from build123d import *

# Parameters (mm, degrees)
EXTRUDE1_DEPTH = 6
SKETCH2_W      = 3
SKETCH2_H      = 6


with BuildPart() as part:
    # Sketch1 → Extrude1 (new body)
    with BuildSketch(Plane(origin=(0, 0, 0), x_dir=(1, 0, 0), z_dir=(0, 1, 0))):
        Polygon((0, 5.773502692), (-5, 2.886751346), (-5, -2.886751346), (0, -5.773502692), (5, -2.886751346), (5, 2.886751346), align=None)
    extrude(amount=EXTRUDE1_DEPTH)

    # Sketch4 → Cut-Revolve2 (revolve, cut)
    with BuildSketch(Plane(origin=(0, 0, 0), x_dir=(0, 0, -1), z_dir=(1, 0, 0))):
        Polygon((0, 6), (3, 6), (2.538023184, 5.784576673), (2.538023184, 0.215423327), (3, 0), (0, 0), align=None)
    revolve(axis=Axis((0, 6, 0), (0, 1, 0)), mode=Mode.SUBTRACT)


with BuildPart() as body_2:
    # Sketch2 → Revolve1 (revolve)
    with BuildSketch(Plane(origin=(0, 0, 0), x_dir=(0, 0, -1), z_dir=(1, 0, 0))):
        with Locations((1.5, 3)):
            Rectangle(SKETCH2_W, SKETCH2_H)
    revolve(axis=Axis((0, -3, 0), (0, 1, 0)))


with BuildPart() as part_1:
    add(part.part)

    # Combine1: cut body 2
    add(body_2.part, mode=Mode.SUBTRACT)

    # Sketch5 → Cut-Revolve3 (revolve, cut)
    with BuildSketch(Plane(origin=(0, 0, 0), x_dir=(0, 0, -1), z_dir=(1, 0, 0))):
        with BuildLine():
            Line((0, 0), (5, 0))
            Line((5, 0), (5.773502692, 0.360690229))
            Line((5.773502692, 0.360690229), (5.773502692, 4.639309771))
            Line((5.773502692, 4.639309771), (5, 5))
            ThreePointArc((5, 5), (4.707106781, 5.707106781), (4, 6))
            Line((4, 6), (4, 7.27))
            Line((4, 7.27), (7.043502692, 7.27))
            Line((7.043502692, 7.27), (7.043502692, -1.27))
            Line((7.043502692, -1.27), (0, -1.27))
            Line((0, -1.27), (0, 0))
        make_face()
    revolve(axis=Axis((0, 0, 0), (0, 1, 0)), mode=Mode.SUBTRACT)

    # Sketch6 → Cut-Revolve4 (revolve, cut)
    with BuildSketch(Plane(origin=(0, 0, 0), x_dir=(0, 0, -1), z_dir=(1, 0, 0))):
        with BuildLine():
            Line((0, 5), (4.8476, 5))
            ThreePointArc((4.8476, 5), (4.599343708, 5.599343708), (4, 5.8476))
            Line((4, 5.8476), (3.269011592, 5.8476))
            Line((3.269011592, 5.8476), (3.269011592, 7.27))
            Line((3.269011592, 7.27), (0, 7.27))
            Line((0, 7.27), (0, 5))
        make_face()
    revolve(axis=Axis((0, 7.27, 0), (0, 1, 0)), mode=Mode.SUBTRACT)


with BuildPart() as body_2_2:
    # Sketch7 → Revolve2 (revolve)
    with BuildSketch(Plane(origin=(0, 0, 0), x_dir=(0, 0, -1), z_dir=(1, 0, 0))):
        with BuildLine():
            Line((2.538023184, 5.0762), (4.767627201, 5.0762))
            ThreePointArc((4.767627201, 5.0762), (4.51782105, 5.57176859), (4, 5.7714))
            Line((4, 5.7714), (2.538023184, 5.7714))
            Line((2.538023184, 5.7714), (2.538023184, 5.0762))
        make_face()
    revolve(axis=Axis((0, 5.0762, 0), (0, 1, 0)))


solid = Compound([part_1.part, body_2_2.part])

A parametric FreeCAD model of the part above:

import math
import FreeCAD as App
import Part
import Sketcher
from FreeCAD import Vector
Q = App.Units.Quantity

doc = App.newDocument("Part")
body = doc.addObject("PartDesign::Body", "Body")

# Sketch on XZ plane
sketch1 = body.newObject("Sketcher::SketchObject", "Sketch")
sketch1.AttachmentSupport = (doc.getObject("XZ_Plane"), [""])
sketch1.MapMode = "FlatFace"
sketch1.addGeometry(Part.LineSegment(Vector(0, -6, 0), Vector(-5, -3, 0)), False)
sketch1.addGeometry(Part.LineSegment(Vector(-5, -3, 0), Vector(-5, 3, 0)), False)
sketch1.addGeometry(Part.LineSegment(Vector(-5, 3, 0), Vector(0, 6, 0)), False)
sketch1.addGeometry(Part.LineSegment(Vector(0, 6, 0), Vector(5, 3, 0)), False)
sketch1.addGeometry(Part.LineSegment(Vector(5, 3, 0), Vector(5, -3, 0)), False)
sketch1.addGeometry(Part.LineSegment(Vector(5, -3, 0), Vector(0, -6, 0)), False)
sketch1.addConstraint(Sketcher.Constraint("Coincident", 0, 2, 1, 1))
sketch1.addConstraint(Sketcher.Constraint("Coincident", 1, 2, 2, 1))
sketch1.addConstraint(Sketcher.Constraint("Coincident", 2, 2, 3, 1))
sketch1.addConstraint(Sketcher.Constraint("Coincident", 3, 2, 4, 1))
sketch1.addConstraint(Sketcher.Constraint("Coincident", 4, 2, 5, 1))
sketch1.addConstraint(Sketcher.Constraint("Coincident", 5, 2, 0, 1))
sketch1.addConstraint(Sketcher.Constraint("Vertical", 1))
sketch1.addConstraint(Sketcher.Constraint("Vertical", 4))
sketch1.addConstraint(Sketcher.Constraint("Symmetric", 0, 2, 3, 2, -1, 1))
sketch1.addConstraint(Sketcher.Constraint("Symmetric", 2, 2, 5, 2, -1, 1))
sketch1.addConstraint(Sketcher.Constraint("PointOnObject", 2, 2, -2))
sketch1.addConstraint(Sketcher.Constraint("Parallel", 2, 5))
sketch1.addConstraint(Sketcher.Constraint("Horizontal", 1, 2, 3, 2))
sketch1.addConstraint(Sketcher.Constraint("Angle", 0, Q("150 deg")))
sketch1.addConstraint(Sketcher.Constraint("DistanceX", 0, 2, -1, 1, 5.0))
sketch1.addConstraint(Sketcher.Constraint("DistanceY", 1, 1, 1, 2, 5.773503))
pad1 = body.newObject("PartDesign::Pad", "Pad")
pad1.Profile = sketch1
pad1.Length = 6
pad1.Reversed = True

# Sketch on YZ plane
sketch2 = body.newObject("Sketcher::SketchObject", "Sketch001")
sketch2.AttachmentSupport = (doc.getObject("YZ_Plane"), [""])
sketch2.MapMode = "FlatFace"
sketch2.addGeometry(Part.LineSegment(Vector(6, -3, 0), Vector(6, 0, 0)), False)
sketch2.addGeometry(Part.LineSegment(Vector(6, 0, 0), Vector(0, 0, 0)), False)
sketch2.addGeometry(Part.LineSegment(Vector(0, 0, 0), Vector(0, -3, 0)), False)
sketch2.addGeometry(Part.LineSegment(Vector(0, -3, 0), Vector(0.2, -2.5, 0)), False)
sketch2.addGeometry(Part.LineSegment(Vector(0.2, -2.5, 0), Vector(5.8, -2.5, 0)), False)
sketch2.addGeometry(Part.LineSegment(Vector(5.8, -2.5, 0), Vector(6, -3, 0)), False)
sketch2.addConstraint(Sketcher.Constraint("Coincident", 0, 2, 1, 1))
sketch2.addConstraint(Sketcher.Constraint("Coincident", 1, 2, 2, 1))
sketch2.addConstraint(Sketcher.Constraint("Coincident", 2, 2, 3, 1))
sketch2.addConstraint(Sketcher.Constraint("Coincident", 3, 2, 4, 1))
sketch2.addConstraint(Sketcher.Constraint("Coincident", 4, 2, 5, 1))
sketch2.addConstraint(Sketcher.Constraint("Coincident", 5, 2, 0, 1))
sketch2.addConstraint(Sketcher.Constraint("Vertical", 0))
sketch2.addConstraint(Sketcher.Constraint("Horizontal", 1))
sketch2.addConstraint(Sketcher.Constraint("Vertical", 2))
sketch2.addConstraint(Sketcher.Constraint("Horizontal", 4))
sketch2.addConstraint(Sketcher.Constraint("Coincident", 1, 2, -1, 1))
sketch2.addConstraint(Sketcher.Constraint("Horizontal", 2, 2, 5, 2))
sketch2.addConstraint(Sketcher.Constraint("Equal", 3, 5))
sketch2.addConstraint(Sketcher.Constraint("DistanceX", 1, 2, 1, 1, 6.0))
sketch2.addConstraint(Sketcher.Constraint("DistanceY", 0, 1, 0, 2, 3.0))
sketch2.addConstraint(Sketcher.Constraint("Angle", 3, Q("65 deg")))
sketch2.addConstraint(Sketcher.Constraint("DistanceX", 4, 1, 4, 2, 5.569153))
groove = body.newObject("PartDesign::Groove", "Groove")
groove.Profile = sketch2
groove.ReferenceAxis = (sketch2, ["H_Axis"])
groove.Angle = 360
body2 = doc.addObject("PartDesign::Body", "Body001")

# Sketch on YZ plane
sketch3 = body2.newObject("Sketcher::SketchObject", "Sketch002")
sketch3.AttachmentSupport = (doc.getObject("YZ_Plane001"), [""])
sketch3.MapMode = "FlatFace"
sketch3.addGeometry(Part.LineSegment(Vector(6, 0, 0), Vector(0, 0, 0)), False)
sketch3.addGeometry(Part.LineSegment(Vector(0, 0, 0), Vector(0, -3, 0)), False)
sketch3.addGeometry(Part.LineSegment(Vector(0, -3, 0), Vector(6, -3, 0)), False)
sketch3.addGeometry(Part.LineSegment(Vector(6, -3, 0), Vector(6, 0, 0)), False)
sketch3.addConstraint(Sketcher.Constraint("Coincident", 0, 2, 1, 1))
sketch3.addConstraint(Sketcher.Constraint("Coincident", 1, 2, 2, 1))
sketch3.addConstraint(Sketcher.Constraint("Coincident", 2, 2, 3, 1))
sketch3.addConstraint(Sketcher.Constraint("Coincident", 3, 2, 0, 1))
sketch3.addConstraint(Sketcher.Constraint("Horizontal", 0))
sketch3.addConstraint(Sketcher.Constraint("Vertical", 1))
sketch3.addConstraint(Sketcher.Constraint("Horizontal", 2))
sketch3.addConstraint(Sketcher.Constraint("Vertical", 3))
sketch3.addConstraint(Sketcher.Constraint("Coincident", 0, 2, -1, 1))
sketch3.addConstraint(Sketcher.Constraint("DistanceX", 0, 2, 0, 1, 6.0))
sketch3.addConstraint(Sketcher.Constraint("DistanceY", 1, 2, 1, 1, 3.0))
revolution = body2.newObject("PartDesign::Revolution", "Revolution")
revolution.Profile = sketch3
revolution.ReferenceAxis = (sketch3, ["H_Axis"])
revolution.Angle = 360
doc.recompute()

boolean = body.newObject("PartDesign::Boolean", "Boolean")
boolean.Type = "Cut"
boolean.addObjects([body2])

# Sketch on YZ plane
sketch4 = body.newObject("Sketcher::SketchObject", "Sketch003")
sketch4.AttachmentSupport = (doc.getObject("YZ_Plane"), [""])
sketch4.MapMode = "FlatFace"
sketch4.addGeometry(Part.LineSegment(Vector(0, -5, 0), Vector(0, 0, 0)), False)
sketch4.addGeometry(Part.LineSegment(Vector(0, 0, 0), Vector(-1.3, 0, 0)), False)
sketch4.addGeometry(Part.LineSegment(Vector(-1.3, 0, 0), Vector(-1.3, -7, 0)), False)
sketch4.addGeometry(Part.LineSegment(Vector(-1.3, -7, 0), Vector(7.3, -7, 0)), False)
sketch4.addGeometry(Part.LineSegment(Vector(7.3, -7, 0), Vector(7.3, -4, 0)), False)
sketch4.addGeometry(Part.LineSegment(Vector(7.3, -4, 0), Vector(6, -4, 0)), False)
sketch4.addGeometry(Part.ArcOfCircle(Part.Circle(Vector(5, -4, 0), Vector(0, 0, 1), 1), math.radians(-90), math.radians(0)), False)
sketch4.addGeometry(Part.LineSegment(Vector(5, -5, 0), Vector(4.6, -5.8, 0)), False)
sketch4.addGeometry(Part.LineSegment(Vector(4.6, -5.8, 0), Vector(0.4, -5.8, 0)), False)
sketch4.addGeometry(Part.LineSegment(Vector(0.4, -5.8, 0), Vector(0, -5, 0)), False)
sketch4.addConstraint(Sketcher.Constraint("Coincident", 0, 2, 1, 1))
sketch4.addConstraint(Sketcher.Constraint("Coincident", 1, 2, 2, 1))
sketch4.addConstraint(Sketcher.Constraint("Coincident", 2, 2, 3, 1))
sketch4.addConstraint(Sketcher.Constraint("Coincident", 3, 2, 4, 1))
sketch4.addConstraint(Sketcher.Constraint("Coincident", 4, 2, 5, 1))
sketch4.addConstraint(Sketcher.Constraint("Coincident", 5, 2, 6, 2))
sketch4.addConstraint(Sketcher.Constraint("Coincident", 6, 1, 7, 1))
sketch4.addConstraint(Sketcher.Constraint("Coincident", 7, 2, 8, 1))
sketch4.addConstraint(Sketcher.Constraint("Coincident", 8, 2, 9, 1))
sketch4.addConstraint(Sketcher.Constraint("Coincident", 9, 2, 0, 1))
sketch4.addConstraint(Sketcher.Constraint("Vertical", 0))
sketch4.addConstraint(Sketcher.Constraint("Horizontal", 1))
sketch4.addConstraint(Sketcher.Constraint("Vertical", 2))
sketch4.addConstraint(Sketcher.Constraint("Horizontal", 3))
sketch4.addConstraint(Sketcher.Constraint("Vertical", 4))
sketch4.addConstraint(Sketcher.Constraint("Horizontal", 5))
sketch4.addConstraint(Sketcher.Constraint("Horizontal", 8))
sketch4.addConstraint(Sketcher.Constraint("Coincident", 0, 2, -1, 1))
sketch4.addConstraint(Sketcher.Constraint("Horizontal", 6, 3, 4, 2))
sketch4.addConstraint(Sketcher.Constraint("Horizontal", 6, 1, 9, 2))
sketch4.addConstraint(Sketcher.Constraint("Equal", 1, 5))
sketch4.addConstraint(Sketcher.Constraint("Equal", 7, 9))
sketch4.addConstraint(Sketcher.Constraint("Radius", 6, 1.0))
sketch4.addConstraint(Sketcher.Constraint("DistanceY", 0, 1, 0, 2, 5.0))
sketch4.addConstraint(Sketcher.Constraint("Angle", 7, Q("-115 deg")))
sketch4.addConstraint(Sketcher.Constraint("DistanceX", -1, 1, 6, 3, 5.0))
sketch4.addConstraint(Sketcher.Constraint("DistanceX", -1, 1, 6, 1, 5.0))
sketch4.addConstraint(Sketcher.Constraint("DistanceX", 1, 2, 1, 1, 1.27))
sketch4.addConstraint(Sketcher.Constraint("DistanceY", 3, 2, 7, 2, 1.27))
sketch4.addConstraint(Sketcher.Constraint("DistanceX", 8, 2, 8, 1, 4.27862))
groove2 = body.newObject("PartDesign::Groove", "Groove001")
groove2.Profile = sketch4
groove2.ReferenceAxis = (sketch4, ["H_Axis"])
groove2.Angle = 360

# Sketch on YZ plane
sketch5 = body.newObject("Sketcher::SketchObject", "Sketch004")
sketch5.AttachmentSupport = (doc.getObject("YZ_Plane"), [""])
sketch5.MapMode = "FlatFace"
sketch5.addGeometry(Part.LineSegment(Vector(5, 0, 0), Vector(5, -4.8, 0)), False)
sketch5.addGeometry(Part.ArcOfCircle(Part.Circle(Vector(5, -4, 0), Vector(0, 0, 1), 0.8), math.radians(-90), math.radians(0)), False)
sketch5.addGeometry(Part.LineSegment(Vector(5.8, -4, 0), Vector(5.8, -3.3, 0)), False)
sketch5.addGeometry(Part.LineSegment(Vector(5.8, -3.3, 0), Vector(7.3, -3.3, 0)), False)
sketch5.addGeometry(Part.LineSegment(Vector(7.3, -3.3, 0), Vector(7.3, 0, 0)), False)
sketch5.addGeometry(Part.LineSegment(Vector(7.3, 0, 0), Vector(5, 0, 0)), False)
sketch5.addConstraint(Sketcher.Constraint("Coincident", 0, 2, 1, 1))
sketch5.addConstraint(Sketcher.Constraint("Tangent", 1, 2, 2, 1))
sketch5.addConstraint(Sketcher.Constraint("Coincident", 2, 2, 3, 1))
sketch5.addConstraint(Sketcher.Constraint("Coincident", 3, 2, 4, 1))
sketch5.addConstraint(Sketcher.Constraint("Coincident", 4, 2, 5, 1))
sketch5.addConstraint(Sketcher.Constraint("Coincident", 5, 2, 0, 1))
sketch5.addConstraint(Sketcher.Constraint("Vertical", 0))
sketch5.addConstraint(Sketcher.Constraint("Vertical", 2))
sketch5.addConstraint(Sketcher.Constraint("Horizontal", 3))
sketch5.addConstraint(Sketcher.Constraint("Vertical", 4))
sketch5.addConstraint(Sketcher.Constraint("Horizontal", 5))
sketch5.addConstraint(Sketcher.Constraint("PointOnObject", 4, 2, -1))
sketch5.addConstraint(Sketcher.Constraint("Vertical", 1, 3, 0, 2))
sketch5.addConstraint(Sketcher.Constraint("DistanceX", -1, 1, 1, 3, 5.0))
sketch5.addConstraint(Sketcher.Constraint("DistanceY", 1, 3, -1, 1, 4.0))
sketch5.addConstraint(Sketcher.Constraint("DistanceX", 5, 2, 5, 1, 2.27))
sketch5.addConstraint(Sketcher.Constraint("Radius", 1, 0.8476))
sketch5.addConstraint(Sketcher.Constraint("DistanceY", 2, 1, 2, 2, 0.730988))
groove3 = body.newObject("PartDesign::Groove", "Groove002")
groove3.Profile = sketch5
groove3.ReferenceAxis = (sketch5, ["H_Axis"])
groove3.Angle = 360
body3 = doc.addObject("PartDesign::Body", "Body002")

# Sketch on YZ plane
sketch6 = body3.newObject("Sketcher::SketchObject", "Sketch005")
sketch6.AttachmentSupport = (doc.getObject("YZ_Plane002"), [""])
sketch6.MapMode = "FlatFace"
sketch6.addGeometry(Part.LineSegment(Vector(5.1, -2.5, 0), Vector(5.1, -4.8, 0)), False)
sketch6.addGeometry(Part.ArcOfCircle(Part.Circle(Vector(5, -4, 0), Vector(0, 0, 1), 0.8), math.radians(-84), math.radians(0)), False)
sketch6.addGeometry(Part.LineSegment(Vector(5.8, -4, 0), Vector(5.8, -2.5, 0)), False)
sketch6.addGeometry(Part.LineSegment(Vector(5.8, -2.5, 0), Vector(5.1, -2.5, 0)), False)
sketch6.addConstraint(Sketcher.Constraint("Coincident", 0, 2, 1, 1))
sketch6.addConstraint(Sketcher.Constraint("Tangent", 1, 2, 2, 1))
sketch6.addConstraint(Sketcher.Constraint("Coincident", 2, 2, 3, 1))
sketch6.addConstraint(Sketcher.Constraint("Coincident", 3, 2, 0, 1))
sketch6.addConstraint(Sketcher.Constraint("Vertical", 0))
sketch6.addConstraint(Sketcher.Constraint("Vertical", 2))
sketch6.addConstraint(Sketcher.Constraint("Horizontal", 3))
sketch6.addConstraint(Sketcher.Constraint("DistanceX", -1, 1, 1, 3, 5.0))
sketch6.addConstraint(Sketcher.Constraint("DistanceY", 1, 3, -1, 1, 4.0))
sketch6.addConstraint(Sketcher.Constraint("Radius", 1, 0.7714))
sketch6.addConstraint(Sketcher.Constraint("DistanceX", 3, 2, 3, 1, 0.6952))
sketch6.addConstraint(Sketcher.Constraint("DistanceY", 0, 2, 0, 1, 2.229604))
revolution2 = body3.newObject("PartDesign::Revolution", "Revolution001")
revolution2.Profile = sketch6
revolution2.ReferenceAxis = (sketch6, ["H_Axis"])
revolution2.Angle = 360

doc.recompute()
